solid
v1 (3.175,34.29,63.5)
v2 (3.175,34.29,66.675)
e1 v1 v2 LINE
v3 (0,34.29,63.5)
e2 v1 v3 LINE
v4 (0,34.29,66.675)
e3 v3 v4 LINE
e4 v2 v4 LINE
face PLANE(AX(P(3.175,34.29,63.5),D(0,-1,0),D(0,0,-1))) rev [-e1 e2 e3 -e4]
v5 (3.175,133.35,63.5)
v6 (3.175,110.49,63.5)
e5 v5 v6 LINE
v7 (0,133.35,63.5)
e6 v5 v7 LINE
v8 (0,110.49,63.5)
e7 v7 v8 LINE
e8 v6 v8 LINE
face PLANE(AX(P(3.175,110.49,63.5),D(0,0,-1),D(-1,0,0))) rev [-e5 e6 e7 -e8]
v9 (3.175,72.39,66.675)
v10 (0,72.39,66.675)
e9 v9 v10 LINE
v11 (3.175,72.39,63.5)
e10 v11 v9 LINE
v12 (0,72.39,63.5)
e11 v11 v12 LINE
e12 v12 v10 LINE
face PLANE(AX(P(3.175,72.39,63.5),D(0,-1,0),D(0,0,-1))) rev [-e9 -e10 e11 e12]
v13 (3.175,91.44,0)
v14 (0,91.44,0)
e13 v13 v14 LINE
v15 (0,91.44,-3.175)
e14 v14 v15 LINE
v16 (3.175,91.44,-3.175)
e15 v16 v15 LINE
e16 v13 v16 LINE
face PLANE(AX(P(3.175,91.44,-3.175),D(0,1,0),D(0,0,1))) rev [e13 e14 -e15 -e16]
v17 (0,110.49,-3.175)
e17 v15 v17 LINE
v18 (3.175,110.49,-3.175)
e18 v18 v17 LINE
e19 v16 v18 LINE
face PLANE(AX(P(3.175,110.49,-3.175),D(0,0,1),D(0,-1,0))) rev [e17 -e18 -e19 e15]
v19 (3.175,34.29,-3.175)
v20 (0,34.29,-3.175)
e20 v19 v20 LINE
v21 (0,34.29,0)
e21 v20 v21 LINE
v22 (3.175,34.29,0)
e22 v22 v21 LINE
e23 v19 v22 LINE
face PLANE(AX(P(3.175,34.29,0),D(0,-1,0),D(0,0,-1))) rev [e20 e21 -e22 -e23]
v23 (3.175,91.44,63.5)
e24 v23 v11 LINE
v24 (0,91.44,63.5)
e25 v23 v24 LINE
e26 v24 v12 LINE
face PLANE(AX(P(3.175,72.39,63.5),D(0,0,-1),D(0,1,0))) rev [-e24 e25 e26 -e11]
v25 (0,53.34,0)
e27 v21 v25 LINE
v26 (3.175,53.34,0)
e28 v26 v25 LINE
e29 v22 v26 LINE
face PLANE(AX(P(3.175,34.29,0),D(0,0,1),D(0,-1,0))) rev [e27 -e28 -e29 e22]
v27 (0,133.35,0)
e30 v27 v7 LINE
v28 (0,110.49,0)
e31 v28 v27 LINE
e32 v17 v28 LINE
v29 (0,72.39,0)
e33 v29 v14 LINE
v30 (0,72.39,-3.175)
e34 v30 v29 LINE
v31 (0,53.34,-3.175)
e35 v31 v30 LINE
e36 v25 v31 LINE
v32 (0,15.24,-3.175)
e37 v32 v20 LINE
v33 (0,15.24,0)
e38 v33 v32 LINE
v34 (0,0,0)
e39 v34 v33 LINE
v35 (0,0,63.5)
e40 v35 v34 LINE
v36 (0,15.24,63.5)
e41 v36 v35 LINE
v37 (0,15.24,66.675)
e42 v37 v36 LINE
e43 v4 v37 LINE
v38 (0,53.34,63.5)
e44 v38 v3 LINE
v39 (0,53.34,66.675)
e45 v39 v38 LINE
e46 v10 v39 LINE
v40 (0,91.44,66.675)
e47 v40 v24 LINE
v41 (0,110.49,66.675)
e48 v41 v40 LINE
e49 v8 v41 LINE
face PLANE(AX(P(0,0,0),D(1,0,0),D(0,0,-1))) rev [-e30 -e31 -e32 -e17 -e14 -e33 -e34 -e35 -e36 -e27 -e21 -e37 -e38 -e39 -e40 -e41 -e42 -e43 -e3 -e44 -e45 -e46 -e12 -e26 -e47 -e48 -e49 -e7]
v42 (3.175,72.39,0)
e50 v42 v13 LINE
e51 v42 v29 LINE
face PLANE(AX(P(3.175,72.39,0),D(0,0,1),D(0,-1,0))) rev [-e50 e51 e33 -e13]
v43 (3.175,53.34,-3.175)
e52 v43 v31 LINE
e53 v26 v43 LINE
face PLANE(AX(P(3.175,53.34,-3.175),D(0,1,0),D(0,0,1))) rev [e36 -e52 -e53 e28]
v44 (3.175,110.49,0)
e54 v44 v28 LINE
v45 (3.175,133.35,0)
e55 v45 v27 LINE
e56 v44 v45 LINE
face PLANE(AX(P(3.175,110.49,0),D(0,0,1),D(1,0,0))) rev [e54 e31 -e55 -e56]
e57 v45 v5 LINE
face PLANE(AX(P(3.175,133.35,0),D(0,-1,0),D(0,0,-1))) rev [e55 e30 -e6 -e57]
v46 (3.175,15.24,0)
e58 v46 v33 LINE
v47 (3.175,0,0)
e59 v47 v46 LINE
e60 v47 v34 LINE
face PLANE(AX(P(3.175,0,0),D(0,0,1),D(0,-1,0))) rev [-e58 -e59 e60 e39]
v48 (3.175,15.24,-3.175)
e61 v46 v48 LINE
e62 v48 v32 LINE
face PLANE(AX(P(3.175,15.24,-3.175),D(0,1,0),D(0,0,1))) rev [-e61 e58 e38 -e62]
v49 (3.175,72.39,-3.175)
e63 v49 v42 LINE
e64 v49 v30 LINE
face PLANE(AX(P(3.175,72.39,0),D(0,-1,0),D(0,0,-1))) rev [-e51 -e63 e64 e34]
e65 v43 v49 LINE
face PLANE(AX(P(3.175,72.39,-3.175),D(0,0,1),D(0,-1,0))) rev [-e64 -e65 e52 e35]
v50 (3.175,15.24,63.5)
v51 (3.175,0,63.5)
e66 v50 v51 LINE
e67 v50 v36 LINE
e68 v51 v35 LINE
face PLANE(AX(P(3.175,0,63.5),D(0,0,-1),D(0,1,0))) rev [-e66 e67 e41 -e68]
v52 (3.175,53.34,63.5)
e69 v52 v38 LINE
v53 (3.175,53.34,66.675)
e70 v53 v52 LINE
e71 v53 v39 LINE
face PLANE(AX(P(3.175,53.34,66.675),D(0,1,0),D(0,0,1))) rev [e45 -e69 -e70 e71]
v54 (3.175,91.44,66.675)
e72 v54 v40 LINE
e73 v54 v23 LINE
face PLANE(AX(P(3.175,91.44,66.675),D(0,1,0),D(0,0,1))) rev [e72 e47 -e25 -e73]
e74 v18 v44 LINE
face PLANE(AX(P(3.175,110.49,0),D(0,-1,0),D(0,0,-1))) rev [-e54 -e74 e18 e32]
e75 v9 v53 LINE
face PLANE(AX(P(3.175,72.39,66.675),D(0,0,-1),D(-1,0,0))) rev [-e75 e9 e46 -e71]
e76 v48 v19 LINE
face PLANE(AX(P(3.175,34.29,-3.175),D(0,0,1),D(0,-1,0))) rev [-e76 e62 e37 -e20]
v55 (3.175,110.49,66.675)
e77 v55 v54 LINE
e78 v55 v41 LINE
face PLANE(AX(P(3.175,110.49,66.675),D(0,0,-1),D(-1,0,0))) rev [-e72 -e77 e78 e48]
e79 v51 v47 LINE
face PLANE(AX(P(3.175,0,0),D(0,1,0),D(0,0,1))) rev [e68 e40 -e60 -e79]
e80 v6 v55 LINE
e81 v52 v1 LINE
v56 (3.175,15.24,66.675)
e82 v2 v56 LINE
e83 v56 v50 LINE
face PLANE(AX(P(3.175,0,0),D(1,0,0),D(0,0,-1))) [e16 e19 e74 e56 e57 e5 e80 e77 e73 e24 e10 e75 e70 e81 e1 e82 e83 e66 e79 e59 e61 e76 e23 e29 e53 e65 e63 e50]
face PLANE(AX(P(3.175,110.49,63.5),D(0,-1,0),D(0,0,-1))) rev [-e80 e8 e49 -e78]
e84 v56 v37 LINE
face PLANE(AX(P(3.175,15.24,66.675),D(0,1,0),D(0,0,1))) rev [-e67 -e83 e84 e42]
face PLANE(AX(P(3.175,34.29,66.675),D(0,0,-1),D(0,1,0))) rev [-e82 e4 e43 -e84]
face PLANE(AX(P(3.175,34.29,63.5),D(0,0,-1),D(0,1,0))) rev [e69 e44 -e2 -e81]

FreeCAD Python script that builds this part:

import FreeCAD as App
import Part
import Sketcher
from FreeCAD import Vector
Q = App.Units.Quantity

doc = App.newDocument("Part")
body = doc.addObject("PartDesign::Body", "Body")

# Sketch on YZ plane
sketch1 = body.newObject("Sketcher::SketchObject", "Sketch")
sketch1.AttachmentSupport = (doc.getObject("YZ_Plane"), [""])
sketch1.MapMode = "FlatFace"
sketch1.addGeometry(Part.LineSegment(Vector(110.5, -3.2, 0), Vector(110.5, 0, 0)), False)
sketch1.addGeometry(Part.LineSegment(Vector(110.5, 0, 0), Vector(133.3, 0, 0)), False)
sketch1.addGeometry(Part.LineSegment(Vector(133.3, 0, 0), Vector(133.3, 63.5, 0)), False)
sketch1.addGeometry(Part.LineSegment(Vector(133.3, 63.5, 0), Vector(110.5, 63.5, 0)), False)
sketch1.addGeometry(Part.LineSegment(Vector(110.5, 63.5, 0), Vector(110.5, 66.7, 0)), False)
sketch1.addGeometry(Part.LineSegment(Vector(110.5, 66.7, 0), Vector(91.4, 66.7, 0)), False)
sketch1.addGeometry(Part.LineSegment(Vector(91.4, 66.7, 0), Vector(91.4, 63.5, 0)), False)
sketch1.addGeometry(Part.LineSegment(Vector(91.4, 63.5, 0), Vector(72.4, 63.5, 0)), False)
sketch1.addGeometry(Part.LineSegment(Vector(72.4, 63.5, 0), Vector(72.4, 66.7, 0)), False)
sketch1.addGeometry(Part.LineSegment(Vector(72.4, 66.7, 0), Vector(53.3, 66.7, 0)), False)
sketch1.addGeometry(Part.LineSegment(Vector(53.3, 66.7, 0), Vector(53.3, 63.5, 0)), False)
sketch1.addGeometry(Part.LineSegment(Vector(53.3, 63.5, 0), Vector(34.3, 63.5, 0)), False)
sketch1.addGeometry(Part.LineSegment(Vector(34.3, 63.5, 0), Vector(34.3, 66.7, 0)), False)
sketch1.addGeometry(Part.LineSegment(Vector(34.3, 66.7, 0), Vector(15.2, 66.7, 0)), False)
sketch1.addGeometry(Part.LineSegment(Vector(15.2, 66.7, 0), Vector(15.2, 63.5, 0)), False)
sketch1.addGeometry(Part.LineSegment(Vector(15.2, 63.5, 0), Vector(0, 63.5, 0)), False)
sketch1.addGeometry(Part.LineSegment(Vector(0, 63.5, 0), Vector(0, 0, 0)), False)
sketch1.addGeometry(Part.LineSegment(Vector(0, 0, 0), Vector(15.2, 0, 0)), False)
sketch1.addGeometry(Part.LineSegment(Vector(15.2, 0, 0), Vector(15.2, -3.2, 0)), False)
sketch1.addGeometry(Part.LineSegment(Vector(15.2, -3.2, 0), Vector(34.3, -3.2, 0)), False)
sketch1.addGeometry(Part.LineSegment(Vector(34.3, -3.2, 0), Vector(34.3, 0, 0)), False)
sketch1.addGeometry(Part.LineSegment(Vector(34.3, 0, 0), Vector(53.3, 0, 0)), False)
sketch1.addGeometry(Part.LineSegment(Vector(53.3, 0, 0), Vector(53.3, -3.2, 0)), False)
sketch1.addGeometry(Part.LineSegment(Vector(53.3, -3.2, 0), Vector(72.4, -3.2, 0)), False)
sketch1.addGeometry(Part.LineSegment(Vector(72.4, -3.2, 0), Vector(72.4, 0, 0)), False)
sketch1.addGeometry(Part.LineSegment(Vector(72.4, 0, 0), Vector(91.4, 0, 0)), False)
sketch1.addGeometry(Part.LineSegment(Vector(91.4, 0, 0), Vector(91.4, -3.2, 0)), False)
sketch1.addGeometry(Part.LineSegment(Vector(91.4, -3.2, 0), Vector(110.5, -3.2, 0)), False)
sketch1.addConstraint(Sketcher.Constraint("Coincident", 0, 2, 1, 1))
sketch1.addConstraint(Sketcher.Constraint("Coincident", 1, 2, 2, 1))
sketch1.addConstraint(Sketcher.Constraint("Coincident", 2, 2, 3, 1))
sketch1.addConstraint(Sketcher.Constraint("Coincident", 3, 2, 4, 1))
sketch1.addConstraint(Sketcher.Constraint("Coincident", 4, 2, 5, 1))
sketch1.addConstraint(Sketcher.Constraint("Coincident", 5, 2, 6, 1))
sketch1.addConstraint(Sketcher.Constraint("Coincident", 6, 2, 7, 1))
sketch1.addConstraint(Sketcher.Constraint("Coincident", 7, 2, 8, 1))
sketch1.addConstraint(Sketcher.Constraint("Coincident", 8, 2, 9, 1))
sketch1.addConstraint(Sketcher.Constraint("Coincident", 9, 2, 10, 1))
sketch1.addConstraint(Sketcher.Constraint("Coincident", 10, 2, 11, 1))
sketch1.addConstraint(Sketcher.Constraint("Coincident", 11, 2, 12, 1))
sketch1.addConstraint(Sketcher.Constraint("Coincident", 12, 2, 13, 1))
sketch1.addConstraint(Sketcher.Constraint("Coincident", 13, 2, 14, 1))
sketch1.addConstraint(Sketcher.Constraint("Coincident", 14, 2, 15, 1))
sketch1.addConstraint(Sketcher.Constraint("Coincident", 15, 2, 16, 1))
sketch1.addConstraint(Sketcher.Constraint("Coincident", 16, 2, 17, 1))
sketch1.addConstraint(Sketcher.Constraint("Coincident", 17, 2, 18, 1))
sketch1.addConstraint(Sketcher.Constraint("Coincident", 18, 2, 19, 1))
sketch1.addConstraint(Sketcher.Constraint("Coincident", 19, 2, 20, 1))
sketch1.addConstraint(Sketcher.Constraint("Coincident", 20, 2, 21, 1))
sketch1.addConstraint(Sketcher.Constraint("Coincident", 21, 2, 22, 1))
sketch1.addConstraint(Sketcher.Constraint("Coincident", 22, 2, 23, 1))
sketch1.addConstraint(Sketcher.Constraint("Coincident", 23, 2, 24, 1))
sketch1.addConstraint(Sketcher.Constraint("Coincident", 24, 2, 25, 1))
sketch1.addConstraint(Sketcher.Constraint("Coincident", 25, 2, 26, 1))
sketch1.addConstraint(Sketcher.Constraint("Coincident", 26, 2, 27, 1))
sketch1.addConstraint(Sketcher.Constraint("Coincident", 27, 2, 0, 1))
sketch1.addConstraint(Sketcher.Constraint("Vertical", 0))
sketch1.addConstraint(Sketcher.Constraint("Horizontal", 1))
sketch1.addConstraint(Sketcher.Constraint("Vertical", 2))
sketch1.addConstraint(Sketcher.Constraint("Horizontal", 3))
sketch1.addConstraint(Sketcher.Constraint("Vertical", 4))
sketch1.addConstraint(Sketcher.Constraint("Horizontal", 5))
sketch1.addConstraint(Sketcher.Constraint("Vertical", 6))
sketch1.addConstraint(Sketcher.Constraint("Horizontal", 7))
sketch1.addConstraint(Sketcher.Constraint("Vertical", 8))
sketch1.addConstraint(Sketcher.Constraint("Horizontal", 9))
sketch1.addConstraint(Sketcher.Constraint("Vertical", 10))
sketch1.addConstraint(Sketcher.Constraint("Horizontal", 11))
sketch1.addConstraint(Sketcher.Constraint("Vertical", 12))
sketch1.addConstraint(Sketcher.Constraint("Horizontal", 13))
sketch1.addConstraint(Sketcher.Constraint("Vertical", 14))
sketch1.addConstraint(Sketcher.Constraint("Horizontal", 15))
sketch1.addConstraint(Sketcher.Constraint("Vertical", 16))
sketch1.addConstraint(Sketcher.Constraint("Horizontal", 17))
sketch1.addConstraint(Sketcher.Constraint("Vertical", 18))
sketch1.addConstraint(Sketcher.Constraint("Horizontal", 19))
sketch1.addConstraint(Sketcher.Constraint("Vertical", 20))
sketch1.addConstraint(Sketcher.Constraint("Horizontal", 21))
sketch1.addConstraint(Sketcher.Constraint("Vertical", 22))
sketch1.addConstraint(Sketcher.Constraint("Horizontal", 23))
sketch1.addConstraint(Sketcher.Constraint("Vertical", 24))
sketch1.addConstraint(Sketcher.Constraint("Horizontal", 25))
sketch1.addConstraint(Sketcher.Constraint("Vertical", 26))
sketch1.addConstraint(Sketcher.Constraint("Horizontal", 27))
sketch1.addConstraint(Sketcher.Constraint("Coincident", 16, 2, -1, 1))
sketch1.addConstraint(Sketcher.Constraint("PointOnObject", 0, 2, -1))
sketch1.addConstraint(Sketcher.Constraint("PointOnObject", 20, 2, -1))
sketch1.addConstraint(Sketcher.Constraint("PointOnObject", 24, 2, -1))
sketch1.addConstraint(Sketcher.Constraint("Horizontal", 3, 2, 6, 2))
sketch1.addConstraint(Sketcher.Constraint("Horizontal", 5, 2, 8, 2))
sketch1.addConstraint(Sketcher.Constraint("Horizontal", 7, 2, 10, 2))
sketch1.addConstraint(Sketcher.Constraint("Horizontal", 9, 2, 12, 2))
sketch1.addConstraint(Sketcher.Constraint("Horizontal", 11, 2, 14, 2))
sketch1.addConstraint(Sketcher.Constraint("Horizontal", 19, 2, 22, 2))
sketch1.addConstraint(Sketcher.Constraint("Horizontal", 23, 2, 26, 2))
sketch1.addConstraint(Sketcher.Constraint("Vertical", 0, 2, 3, 2))
sketch1.addConstraint(Sketcher.Constraint("Vertical", 14, 2, 17, 2))
sketch1.addConstraint(Sketcher.Constraint("Vertical", 12, 2, 19, 2))
sketch1.addConstraint(Sketcher.Constraint("Vertical", 10, 2, 21, 2))
sketch1.addConstraint(Sketcher.Constraint("Vertical", 8, 2, 23, 2))
sketch1.addConstraint(Sketcher.Constraint("Vertical", 6, 2, 25, 2))
sketch1.addConstraint(Sketcher.Constraint("Equal", 5, 7))
sketch1.addConstraint(Sketcher.Constraint("Equal", 7, 9))
sketch1.addConstraint(Sketcher.Constraint("Equal", 9, 11))
sketch1.addConstraint(Sketcher.Constraint("Equal", 11, 13))
sketch1.addConstraint(Sketcher.Constraint("Equal", 0, 4))
sketch1.addConstraint(Sketcher.Constraint("DistanceX", 1, 1, 1, 2, Q("0.9 in")))
sketch1.addConstraint(Sketcher.Constraint("DistanceX", 15, 2, 15, 1, Q("0.6 in")))
sketch1.addConstraint(Sketcher.Constraint("DistanceY", 2, 1, 2, 2, Q("2.5 in")))
sketch1.addConstraint(Sketcher.Constraint("DistanceX", 5, 2, 5, 1, Q("0.75 in")))
sketch1.addConstraint(Sketcher.Constraint("DistanceY", 0, 1, 0, 2, Q("0.125 in")))
pad1 = body.newObject("PartDesign::Pad", "Pad")
pad1.Profile = sketch1
pad1.Length = Q("0.125 in")

doc.recompute()
